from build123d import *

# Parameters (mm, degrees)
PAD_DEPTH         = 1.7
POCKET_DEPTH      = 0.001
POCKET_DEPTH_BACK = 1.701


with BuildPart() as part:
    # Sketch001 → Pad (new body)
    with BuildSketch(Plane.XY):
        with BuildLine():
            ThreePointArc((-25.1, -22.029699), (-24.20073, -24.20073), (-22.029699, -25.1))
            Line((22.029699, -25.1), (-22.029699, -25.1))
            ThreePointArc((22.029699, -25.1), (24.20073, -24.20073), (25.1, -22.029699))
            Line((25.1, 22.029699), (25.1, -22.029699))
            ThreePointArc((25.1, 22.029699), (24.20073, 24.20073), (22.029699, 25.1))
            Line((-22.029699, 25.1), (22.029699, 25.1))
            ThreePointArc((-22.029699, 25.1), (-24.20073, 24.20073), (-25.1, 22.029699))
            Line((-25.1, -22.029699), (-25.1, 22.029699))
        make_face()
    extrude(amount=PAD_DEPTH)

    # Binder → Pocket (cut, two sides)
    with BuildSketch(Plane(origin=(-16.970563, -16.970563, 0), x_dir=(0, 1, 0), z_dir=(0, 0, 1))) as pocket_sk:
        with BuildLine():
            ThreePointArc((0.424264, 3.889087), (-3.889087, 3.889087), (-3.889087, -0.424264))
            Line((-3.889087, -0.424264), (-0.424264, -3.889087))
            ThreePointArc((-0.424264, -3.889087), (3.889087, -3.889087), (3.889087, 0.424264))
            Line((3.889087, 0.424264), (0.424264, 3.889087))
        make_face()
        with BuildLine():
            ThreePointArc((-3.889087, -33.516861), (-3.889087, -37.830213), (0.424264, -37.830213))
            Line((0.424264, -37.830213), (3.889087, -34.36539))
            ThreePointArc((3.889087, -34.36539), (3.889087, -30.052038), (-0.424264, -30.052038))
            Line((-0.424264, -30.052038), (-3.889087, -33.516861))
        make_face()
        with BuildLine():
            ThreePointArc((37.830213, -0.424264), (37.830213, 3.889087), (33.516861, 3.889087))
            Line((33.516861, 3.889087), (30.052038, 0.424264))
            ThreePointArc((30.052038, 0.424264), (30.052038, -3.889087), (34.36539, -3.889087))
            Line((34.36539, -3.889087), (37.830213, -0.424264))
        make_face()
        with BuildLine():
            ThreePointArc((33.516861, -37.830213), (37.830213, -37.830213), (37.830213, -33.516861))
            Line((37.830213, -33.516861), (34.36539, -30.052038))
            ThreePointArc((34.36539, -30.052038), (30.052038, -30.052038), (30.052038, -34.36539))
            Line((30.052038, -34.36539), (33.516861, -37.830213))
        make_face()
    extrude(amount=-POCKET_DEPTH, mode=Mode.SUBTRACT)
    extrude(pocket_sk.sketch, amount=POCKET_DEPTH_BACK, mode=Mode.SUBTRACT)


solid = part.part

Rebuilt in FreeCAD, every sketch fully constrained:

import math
import FreeCAD as App
import Part
import Sketcher

V = App.Vector

doc = App.newDocument("Part")
body = doc.addObject("PartDesign::Body", "Body")

sketch1 = doc.addObject("Sketcher::SketchObject", "Sketch")
body.addObject(sketch1)
sketch1.AttachmentSupport = (doc.XY_Plane, [""])
sketch1.MapMode = "FlatFace"
sketch1.addGeometry(Part.ArcOfCircle(Part.Circle(V(-22, -22, 0), V(0, 0, 1), 3.1), math.radians(180), math.radians(270)), False)
sketch1.addGeometry(Part.LineSegment(V(-22, -25.1, 0), V(22, -25.1, 0)), False)
sketch1.addGeometry(Part.ArcOfCircle(Part.Circle(V(22, -22, 0), V(0, 0, 1), 3.1), math.radians(-90), math.radians(0)), False)
sketch1.addGeometry(Part.LineSegment(V(25.1, -22, 0), V(25.1, 22, 0)), False)
sketch1.addGeometry(Part.ArcOfCircle(Part.Circle(V(22, 22, 0), V(0, 0, 1), 3.1), math.radians(0), math.radians(90)), False)
sketch1.addGeometry(Part.LineSegment(V(22, 25.1, 0), V(-22, 25.1, 0)), False)
sketch1.addGeometry(Part.ArcOfCircle(Part.Circle(V(-22, 22, 0), V(0, 0, 1), 3.1), math.radians(90), math.radians(180)), False)
sketch1.addGeometry(Part.LineSegment(V(-25.1, 22, 0), V(-25.1, -22, 0)), False)
sketch1.addConstraint(Sketcher.Constraint("Tangent", 0, 2, 1, 1))
sketch1.addConstraint(Sketcher.Constraint("Tangent", 1, 2, 2, 1))
sketch1.addConstraint(Sketcher.Constraint("Tangent", 2, 2, 3, 1))
sketch1.addConstraint(Sketcher.Constraint("Tangent", 3, 2, 4, 1))
sketch1.addConstraint(Sketcher.Constraint("Tangent", 4, 2, 5, 1))
sketch1.addConstraint(Sketcher.Constraint("Tangent", 5, 2, 6, 1))
sketch1.addConstraint(Sketcher.Constraint("Tangent", 6, 2, 7, 1))
sketch1.addConstraint(Sketcher.Constraint("Tangent", 7, 2, 0, 1))
sketch1.addConstraint(Sketcher.Constraint("Horizontal", 1))
sketch1.addConstraint(Sketcher.Constraint("Vertical", 3))
sketch1.addConstraint(Sketcher.Constraint("Horizontal", 5))
sketch1.addConstraint(Sketcher.Constraint("Vertical", 7))
sketch1.addConstraint(Sketcher.Constraint("Equal", 0, 2))
sketch1.addConstraint(Sketcher.Constraint("Equal", 2, 4))
sketch1.addConstraint(Sketcher.Constraint("Equal", 4, 6))
sketch1.addConstraint(Sketcher.Constraint("Symmetric", 0, 3, 4, 3, -1, 1))
sketch1.addConstraint(Sketcher.Constraint("Equal", 5, 3))
sketch1.addConstraint(Sketcher.Constraint("DistanceY", 0, 2, -1, 1, 25.1))
sketch1.addConstraint(Sketcher.Constraint("Radius", 0, 3.0703))
pad1 = doc.addObject("PartDesign::Pad", "Pad")
body.addObject(pad1)
pad1.Profile = sketch1
pad1.Length = 1.7

sketch2 = doc.addObject("Sketcher::SketchObject", "Sketch001")
body.addObject(sketch2)
sketch2.AttachmentSupport = (doc.XY_Plane, [""])
sketch2.MapMode = "FlatFace"
sketch2.addGeometry(Part.ArcOfCircle(Part.Circle(V(-18.7, -18.7, 0), V(0, 0, 1), 3), math.radians(135), math.radians(315)), False)
sketch2.addGeometry(Part.LineSegment(V(-16.5, -20.9, 0), V(-13.1, -17.4, 0)), False)
sketch2.addGeometry(Part.ArcOfCircle(Part.Circle(V(-15.2, -15.2, 0), V(0, 0, 1), 3), math.radians(-45), math.radians(135)), False)
sketch2.addGeometry(Part.LineSegment(V(-17.4, -13.1, 0), V(-20.9, -16.5, 0)), False)
sketch2.addGeometry(Part.ArcOfCircle(Part.Circle(V(18.7, -18.7, 0), V(0, 0, 1), 3.1), math.radians(-135), math.radians(45)), False)
sketch2.addGeometry(Part.LineSegment(V(20.9, -16.5, 0), V(17.4, -13.1, 0)), False)
sketch2.addGeometry(Part.ArcOfCircle(Part.Circle(V(15.2, -15.2, 0), V(0, 0, 1), 3.1), math.radians(45), math.radians(225)), False)
sketch2.addGeometry(Part.LineSegment(V(13.1, -17.4, 0), V(16.5, -20.9, 0)), False)
sketch2.addGeometry(Part.ArcOfCircle(Part.Circle(V(-18.7, 18.7, 0), V(0, 0, 1), 3.1), math.radians(45), math.radians(225)), False)
sketch2.addGeometry(Part.LineSegment(V(-20.9, 16.5, 0), V(-17.4, 13.1, 0)), False)
sketch2.addGeometry(Part.ArcOfCircle(Part.Circle(V(-15.2, 15.2, 0), V(0, 0, 1), 3.1), math.radians(-135), math.radians(45)), False)
sketch2.addGeometry(Part.LineSegment(V(-13.1, 17.4, 0), V(-16.5, 20.9, 0)), False)
sketch2.addGeometry(Part.ArcOfCircle(Part.Circle(V(18.7, 18.7, 0), V(0, 0, 1), 3.1), math.radians(-45), math.radians(135)), False)
sketch2.addGeometry(Part.LineSegment(V(16.5, 20.9, 0), V(13.1, 17.4, 0)), False)
sketch2.addGeometry(Part.ArcOfCircle(Part.Circle(V(15.2, 15.2, 0), V(0, 0, 1), 3.1), math.radians(135), math.radians(315)), False)
sketch2.addGeometry(Part.LineSegment(V(17.4, 13.1, 0), V(20.9, 16.5, 0)), False)
sketch2.addConstraint(Sketcher.Constraint("Tangent", 0, 2, 1, 1))
sketch2.addConstraint(Sketcher.Constraint("Tangent", 1, 2, 2, 1))
sketch2.addConstraint(Sketcher.Constraint("Tangent", 2, 2, 3, 1))
sketch2.addConstraint(Sketcher.Constraint("Tangent", 3, 2, 0, 1))
sketch2.addConstraint(Sketcher.Constraint("Tangent", 4, 2, 5, 1))
sketch2.addConstraint(Sketcher.Constraint("Tangent", 5, 2, 6, 1))
sketch2.addConstraint(Sketcher.Constraint("Tangent", 6, 2, 7, 1))
sketch2.addConstraint(Sketcher.Constraint("Tangent", 7, 2, 4, 1))
sketch2.addConstraint(Sketcher.Constraint("Tangent", 8, 2, 9, 1))
sketch2.addConstraint(Sketcher.Constraint("Tangent", 9, 2, 10, 1))
sketch2.addConstraint(Sketcher.Constraint("Tangent", 10, 2, 11, 1))
sketch2.addConstraint(Sketcher.Constraint("Tangent", 11, 2, 8, 1))
sketch2.addConstraint(Sketcher.Constraint("Tangent", 12, 2, 13, 1))
sketch2.addConstraint(Sketcher.Constraint("Tangent", 13, 2, 14, 1))
sketch2.addConstraint(Sketcher.Constraint("Tangent", 14, 2, 15, 1))
sketch2.addConstraint(Sketcher.Constraint("Tangent", 15, 2, 12, 1))
sketch2.addConstraint(Sketcher.Constraint("Equal", 0, 2))
sketch2.addConstraint(Sketcher.Constraint("Equal", 2, 4))
sketch2.addConstraint(Sketcher.Constraint("Equal", 4, 6))
sketch2.addConstraint(Sketcher.Constraint("Equal", 6, 8))
sketch2.addConstraint(Sketcher.Constraint("Equal", 8, 10))
sketch2.addConstraint(Sketcher.Constraint("Equal", 10, 12))
sketch2.addConstraint(Sketcher.Constraint("Equal", 12, 14))
sketch2.addConstraint(Sketcher.Constraint("Symmetric", 4, 3, 8, 3, -1, 1))
sketch2.addConstraint(Sketcher.Constraint("Symmetric", 6, 3, 10, 3, -1, 1))
sketch2.addConstraint(Sketcher.Constraint("Symmetric", 0, 3, 12, 3, -1, 1))
sketch2.addConstraint(Sketcher.Constraint("Symmetric", 2, 3, 14, 3, -1, 1))
sketch2.addConstraint(Sketcher.Constraint("Symmetric", 0, 3, 4, 3, -2))
sketch2.addConstraint(Sketcher.Constraint("Symmetric", 2, 3, 6, 3, -2))
sketch2.addConstraint(Sketcher.Constraint("Perpendicular", 3, 5))
sketch2.addConstraint(Sketcher.Constraint("Radius", 0, 3.05))
sketch2.addConstraint(Sketcher.Constraint("Distance", 1, 4.9))
sketch2.addConstraint(Sketcher.Constraint("DistanceX", 0, 2, -1, 1, 16.546299))
sketch2.addConstraint(Sketcher.Constraint("DistanceY", 3, 2, -1, 1, 16.546299))
pocket1 = doc.addObject("PartDesign::Pocket", "Pocket")
body.addObject(pocket1)
pocket1.Profile = sketch2
pocket1.Type = "ThroughAll"
pocket1.Midplane = True

doc.recompute()
